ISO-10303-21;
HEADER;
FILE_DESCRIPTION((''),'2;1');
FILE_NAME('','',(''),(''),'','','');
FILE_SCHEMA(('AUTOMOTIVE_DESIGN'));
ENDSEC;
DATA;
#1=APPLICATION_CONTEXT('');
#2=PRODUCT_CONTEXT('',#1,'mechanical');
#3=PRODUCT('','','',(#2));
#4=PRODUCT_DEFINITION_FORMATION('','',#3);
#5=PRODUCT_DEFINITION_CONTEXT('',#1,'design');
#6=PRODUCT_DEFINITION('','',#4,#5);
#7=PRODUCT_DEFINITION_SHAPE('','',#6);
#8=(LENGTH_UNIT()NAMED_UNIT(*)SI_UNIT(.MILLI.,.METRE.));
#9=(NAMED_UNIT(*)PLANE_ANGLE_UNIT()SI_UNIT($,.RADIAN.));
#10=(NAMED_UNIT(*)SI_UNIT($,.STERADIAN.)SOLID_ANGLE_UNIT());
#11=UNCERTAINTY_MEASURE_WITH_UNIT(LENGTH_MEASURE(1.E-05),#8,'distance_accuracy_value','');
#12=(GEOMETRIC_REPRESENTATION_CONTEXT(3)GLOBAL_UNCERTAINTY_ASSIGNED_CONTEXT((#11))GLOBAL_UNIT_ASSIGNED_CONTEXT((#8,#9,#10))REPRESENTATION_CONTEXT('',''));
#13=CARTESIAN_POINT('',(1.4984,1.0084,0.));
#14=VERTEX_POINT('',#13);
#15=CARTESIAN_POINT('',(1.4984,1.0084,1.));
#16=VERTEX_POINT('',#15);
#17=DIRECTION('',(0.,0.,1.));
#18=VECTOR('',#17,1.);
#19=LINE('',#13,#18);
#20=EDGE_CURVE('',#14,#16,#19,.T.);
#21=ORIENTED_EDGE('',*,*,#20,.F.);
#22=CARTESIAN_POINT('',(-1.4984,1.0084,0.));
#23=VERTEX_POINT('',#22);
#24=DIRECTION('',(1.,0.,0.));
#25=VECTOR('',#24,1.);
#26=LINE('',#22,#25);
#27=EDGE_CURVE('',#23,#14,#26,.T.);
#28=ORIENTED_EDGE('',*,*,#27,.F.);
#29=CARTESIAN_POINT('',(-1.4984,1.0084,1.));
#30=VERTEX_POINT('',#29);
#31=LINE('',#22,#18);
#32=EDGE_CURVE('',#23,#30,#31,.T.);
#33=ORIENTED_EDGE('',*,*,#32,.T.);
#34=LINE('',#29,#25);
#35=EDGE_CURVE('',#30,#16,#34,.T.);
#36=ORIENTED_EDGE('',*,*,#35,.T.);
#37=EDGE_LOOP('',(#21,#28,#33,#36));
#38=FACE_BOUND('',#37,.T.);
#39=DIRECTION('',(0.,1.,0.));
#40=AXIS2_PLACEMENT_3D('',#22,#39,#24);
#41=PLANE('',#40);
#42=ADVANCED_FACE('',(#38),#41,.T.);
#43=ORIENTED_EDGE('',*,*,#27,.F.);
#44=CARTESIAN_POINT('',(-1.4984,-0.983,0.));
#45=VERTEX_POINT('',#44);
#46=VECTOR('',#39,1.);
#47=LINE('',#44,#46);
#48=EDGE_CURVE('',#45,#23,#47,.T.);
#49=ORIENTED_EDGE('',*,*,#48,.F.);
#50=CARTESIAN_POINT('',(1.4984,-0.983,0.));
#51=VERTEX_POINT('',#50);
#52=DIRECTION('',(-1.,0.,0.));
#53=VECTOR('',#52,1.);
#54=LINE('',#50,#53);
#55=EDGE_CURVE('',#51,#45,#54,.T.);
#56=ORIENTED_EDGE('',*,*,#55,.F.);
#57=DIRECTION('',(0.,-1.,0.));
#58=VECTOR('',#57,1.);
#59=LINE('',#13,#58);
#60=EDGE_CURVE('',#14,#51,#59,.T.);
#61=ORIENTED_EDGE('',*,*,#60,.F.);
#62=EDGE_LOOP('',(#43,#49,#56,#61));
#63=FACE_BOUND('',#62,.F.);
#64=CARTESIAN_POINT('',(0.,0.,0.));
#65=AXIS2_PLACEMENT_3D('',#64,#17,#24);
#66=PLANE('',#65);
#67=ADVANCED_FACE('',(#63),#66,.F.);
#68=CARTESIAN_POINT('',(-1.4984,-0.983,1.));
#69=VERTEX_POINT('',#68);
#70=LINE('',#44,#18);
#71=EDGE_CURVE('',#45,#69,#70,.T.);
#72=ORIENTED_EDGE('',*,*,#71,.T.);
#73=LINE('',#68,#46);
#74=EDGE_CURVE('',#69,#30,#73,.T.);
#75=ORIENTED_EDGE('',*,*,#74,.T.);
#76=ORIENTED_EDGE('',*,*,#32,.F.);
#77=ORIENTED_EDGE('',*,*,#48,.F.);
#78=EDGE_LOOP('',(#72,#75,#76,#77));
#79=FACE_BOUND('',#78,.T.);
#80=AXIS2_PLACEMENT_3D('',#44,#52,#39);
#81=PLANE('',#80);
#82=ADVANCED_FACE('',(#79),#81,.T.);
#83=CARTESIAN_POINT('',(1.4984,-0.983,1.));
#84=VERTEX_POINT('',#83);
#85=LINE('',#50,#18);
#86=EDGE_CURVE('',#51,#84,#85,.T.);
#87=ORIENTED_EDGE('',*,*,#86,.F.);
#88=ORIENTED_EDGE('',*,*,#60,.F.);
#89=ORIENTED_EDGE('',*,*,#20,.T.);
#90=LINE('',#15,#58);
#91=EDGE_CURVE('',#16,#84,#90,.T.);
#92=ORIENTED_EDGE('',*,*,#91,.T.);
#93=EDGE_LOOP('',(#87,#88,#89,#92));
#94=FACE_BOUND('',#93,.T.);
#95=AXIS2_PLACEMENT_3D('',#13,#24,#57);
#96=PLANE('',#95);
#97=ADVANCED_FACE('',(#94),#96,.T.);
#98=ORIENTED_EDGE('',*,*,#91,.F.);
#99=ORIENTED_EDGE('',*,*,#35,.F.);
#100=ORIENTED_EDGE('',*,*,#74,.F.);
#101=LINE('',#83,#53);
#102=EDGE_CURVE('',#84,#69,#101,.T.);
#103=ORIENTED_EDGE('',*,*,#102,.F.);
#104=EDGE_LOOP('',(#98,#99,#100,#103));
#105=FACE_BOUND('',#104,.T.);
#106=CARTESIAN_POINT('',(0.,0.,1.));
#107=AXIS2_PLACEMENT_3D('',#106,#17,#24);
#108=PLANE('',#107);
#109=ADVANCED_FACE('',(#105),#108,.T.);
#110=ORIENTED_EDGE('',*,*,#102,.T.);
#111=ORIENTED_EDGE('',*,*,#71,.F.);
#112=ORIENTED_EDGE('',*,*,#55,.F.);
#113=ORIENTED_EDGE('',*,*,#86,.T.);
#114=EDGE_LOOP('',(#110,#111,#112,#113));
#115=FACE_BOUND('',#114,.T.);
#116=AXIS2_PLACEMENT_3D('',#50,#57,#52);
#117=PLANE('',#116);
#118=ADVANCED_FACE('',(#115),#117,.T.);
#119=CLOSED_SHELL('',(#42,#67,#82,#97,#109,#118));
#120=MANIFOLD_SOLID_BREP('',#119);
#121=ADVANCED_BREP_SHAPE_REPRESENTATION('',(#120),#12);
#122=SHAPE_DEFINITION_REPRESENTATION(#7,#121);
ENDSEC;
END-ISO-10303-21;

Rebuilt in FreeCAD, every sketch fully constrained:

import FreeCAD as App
import Part
import Sketcher

V = App.Vector

doc = App.newDocument("Part")
body = doc.addObject("PartDesign::Body", "Body")

# Sketch on XY plane
sketch1 = doc.addObject("Sketcher::SketchObject", "Sketch")
body.addObject(sketch1)
sketch1.AttachmentSupport = (doc.XY_Plane, [""])
sketch1.MapMode = "FlatFace"
sketch1.addGeometry([
    Part.LineSegment(V(1.5, 1, 0), V(-1.5, 1, 0)),
    Part.LineSegment(V(-1.5, 1, 0), V(-1.5, -1, 0)),
    Part.LineSegment(V(-1.5, -1, 0), V(1.5, -1, 0)),
    Part.LineSegment(V(1.5, -1, 0), V(1.5, 1, 0)),
], False)
sketch1.addConstraint([
    Sketcher.Constraint("Coincident", 0, 2, 1, 1),
    Sketcher.Constraint("Coincident", 1, 2, 2, 1),
    Sketcher.Constraint("Coincident", 2, 2, 3, 1),
    Sketcher.Constraint("Coincident", 3, 2, 0, 1),
    Sketcher.Constraint("Horizontal", 0),
    Sketcher.Constraint("Vertical", 1),
    Sketcher.Constraint("Horizontal", 2),
    Sketcher.Constraint("Vertical", 3),
    Sketcher.Constraint("DistanceX", 0, 2, 0, 1, 2.9968),
    Sketcher.Constraint("DistanceY", 1, 2, 1, 1, 1.9914),
    Sketcher.Constraint("DistanceY", 1, 2, -1, 1, 0.983),
    Sketcher.Constraint("DistanceX", 0, 2, -1, 1, 1.4984),
])
pad1 = doc.addObject("PartDesign::Pad", "Pad")
body.addObject(pad1)
pad1.Profile = sketch1
pad1.Length = 1

doc.recompute()
